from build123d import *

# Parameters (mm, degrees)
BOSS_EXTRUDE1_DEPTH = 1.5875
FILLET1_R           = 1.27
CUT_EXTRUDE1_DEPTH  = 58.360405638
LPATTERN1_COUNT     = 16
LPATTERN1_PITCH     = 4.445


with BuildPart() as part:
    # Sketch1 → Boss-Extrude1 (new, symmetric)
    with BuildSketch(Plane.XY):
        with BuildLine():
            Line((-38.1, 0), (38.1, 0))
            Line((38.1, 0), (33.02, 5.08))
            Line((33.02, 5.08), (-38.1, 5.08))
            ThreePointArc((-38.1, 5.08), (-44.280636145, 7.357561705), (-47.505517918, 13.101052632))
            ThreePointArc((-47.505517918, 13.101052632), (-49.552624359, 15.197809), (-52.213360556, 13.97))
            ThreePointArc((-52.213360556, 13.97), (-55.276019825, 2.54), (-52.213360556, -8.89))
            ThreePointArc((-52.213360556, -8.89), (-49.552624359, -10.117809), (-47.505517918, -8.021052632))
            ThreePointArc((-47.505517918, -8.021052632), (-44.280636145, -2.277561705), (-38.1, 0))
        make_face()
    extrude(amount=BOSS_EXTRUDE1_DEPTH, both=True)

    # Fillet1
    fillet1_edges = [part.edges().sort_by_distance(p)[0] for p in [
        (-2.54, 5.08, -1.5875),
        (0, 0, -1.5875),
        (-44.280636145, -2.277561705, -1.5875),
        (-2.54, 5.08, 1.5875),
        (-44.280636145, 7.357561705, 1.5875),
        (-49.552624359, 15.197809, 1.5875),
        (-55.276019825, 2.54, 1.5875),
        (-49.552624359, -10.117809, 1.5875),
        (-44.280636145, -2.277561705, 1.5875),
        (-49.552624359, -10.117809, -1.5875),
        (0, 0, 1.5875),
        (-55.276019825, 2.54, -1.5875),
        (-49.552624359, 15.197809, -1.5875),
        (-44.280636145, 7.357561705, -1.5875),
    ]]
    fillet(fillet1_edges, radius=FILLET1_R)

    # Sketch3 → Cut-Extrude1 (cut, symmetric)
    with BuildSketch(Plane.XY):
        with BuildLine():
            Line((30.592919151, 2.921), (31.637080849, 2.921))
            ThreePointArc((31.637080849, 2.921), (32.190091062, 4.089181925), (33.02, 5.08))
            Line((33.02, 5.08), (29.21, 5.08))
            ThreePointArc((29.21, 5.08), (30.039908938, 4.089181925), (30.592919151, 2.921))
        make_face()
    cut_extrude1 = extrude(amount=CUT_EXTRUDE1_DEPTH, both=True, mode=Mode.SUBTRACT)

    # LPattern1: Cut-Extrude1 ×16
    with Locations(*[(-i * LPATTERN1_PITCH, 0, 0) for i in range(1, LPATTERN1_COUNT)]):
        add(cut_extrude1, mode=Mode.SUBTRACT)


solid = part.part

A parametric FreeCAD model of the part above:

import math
import FreeCAD as App
import Part
import Sketcher

V = App.Vector
Q = App.Units.Quantity


def edges_at(feature, points):
    """Names of the edges that pass closest to the given points."""
    edges = feature.Shape.Edges
    near = lambda p: min(range(len(edges)), key=lambda i: edges[i].distToShape(Part.Vertex(*p))[0])
    return sorted({f"Edge{near(p) + 1}" for p in points})

doc = App.newDocument("Part")
body = doc.addObject("PartDesign::Body", "Body")

# Sketch on XY plane
sketch1 = body.newObject("Sketcher::SketchObject", "Sketch")
sketch1.AttachmentSupport = (doc.getObject("XY_Plane"), [""])
sketch1.MapMode = "FlatFace"
sketch1.addGeometry([
    Part.LineSegment(V(-38.1, 0, 0), V(38.1, 0, 0)),  # 0
    Part.LineSegment(V(38.1, 0, 0), V(33.02, 5.08, 0)),  # 1
    Part.LineSegment(V(33.02, 5.08, 0), V(-38.1, 5.08, 0)),  # 2
    Part.ArcOfCircle(Part.Circle(V(-38.1, 14.605, 0), V(0, 0, 1), 9.525), math.radians(-170.91528), math.radians(-90)),  # 3
    Part.ArcOfCircle(Part.Circle(V(-50.013656, 12.7, 0), V(0, 0, 1), 2.54), math.radians(9.08472), math.radians(150)),  # 4
    Part.ArcOfCircle(Part.Circle(V(-32.41602, 2.54, 0), V(0, 0, 1), 22.86), math.radians(150), math.radians(210)),  # 5
    Part.ArcOfCircle(Part.Circle(V(-50.013656, -7.62, 0), V(0, 0, 1), 2.54), math.radians(-150), math.radians(-9.08472)),  # 6
    Part.ArcOfCircle(Part.Circle(V(-38.1, -9.525, 0), V(0, 0, 1), 9.525), math.radians(90), math.radians(170.91528)),  # 7
], False)
sketch1.addConstraint([
    Sketcher.Constraint("Coincident", 0, 2, 1, 1),
    Sketcher.Constraint("Coincident", 1, 2, 2, 1),
    Sketcher.Constraint("Tangent", 2, 2, 3, 2),
    Sketcher.Constraint("Tangent", 3, 1, 4, 1),
    Sketcher.Constraint("Tangent", 4, 2, 5, 1),
    Sketcher.Constraint("Tangent", 5, 2, 6, 1),
    Sketcher.Constraint("Tangent", 6, 2, 7, 2),
    Sketcher.Constraint("Tangent", 7, 1, 0, 1),
    Sketcher.Constraint("Horizontal", 0),
    Sketcher.Constraint("Horizontal", 2),
    Sketcher.Constraint("Equal", 4, 6),
    Sketcher.Constraint("Equal", 3, 7),
    Sketcher.Constraint("Symmetric", 0, 2, 7, 1, -1, 1),
    Sketcher.Constraint("Vertical", 4, 3, 6, 3),
    Sketcher.Constraint("Vertical", 3, 3, 7, 3),
    Sketcher.Constraint("Radius", 4, Q("0.1 in")),
    Sketcher.Constraint("Radius", 5, Q("0.9 in")),
    Sketcher.Constraint("DistanceX", 0, 1, 0, 2, Q("3 in")),
    Sketcher.Constraint("DistanceX", 2, 2, 2, 1, Q("2.8 in")),
    Sketcher.Constraint("Angle", 1, Q("135 deg")),
    Sketcher.Constraint("Radius", 3, Q("0.375 in")),
    Sketcher.Constraint("DistanceY", -1, 1, 4, 3, Q("0.5 in")),
])
pad1 = body.newObject("PartDesign::Pad", "Pad")
pad1.Profile = sketch1
pad1.Length = Q("0.125 in")
pad1.Midplane = True
doc.recompute()

fillet = body.newObject("PartDesign::Fillet", "Fillet")
fillet.Base = (pad1, edges_at(pad1, [
    (-2.54, 5.08, -1.587),
    (0, 0, -1.587),
    (-44.281, -2.278, -1.587),
    (-2.54, 5.08, 1.587),
    (-44.281, 7.358, 1.587),
    (-49.553, 15.198, 1.587),
    (-55.276, 2.54, 1.587),
    (-49.553, -10.118, 1.587),
    (-44.281, -2.278, 1.587),
    (-49.553, -10.118, -1.587),
    (0, 0, 1.587),
    (-55.276, 2.54, -1.587),
    (-49.553, 15.198, -1.587),
    (-44.281, 7.358, -1.587),
]))
fillet.Radius = Q("0.05 in")

# Sketch on XY plane
sketch2 = body.newObject("Sketcher::SketchObject", "Sketch001")
sketch2.AttachmentSupport = (doc.getObject("XY_Plane"), [""])
sketch2.MapMode = "FlatFace"
sketch2.addGeometry([
    Part.LineSegment(V(30.592919, 2.921, 0), V(31.637081, 2.921, 0)),
    Part.ArcOfCircle(Part.Circle(V(36.467787, 1.34916, 0), V(0, 0, 1), 5.08), math.radians(132.741997), math.radians(161.975881)),
    Part.LineSegment(V(33.02, 5.08, 0), V(29.21, 5.08, 0)),
    Part.ArcOfCircle(Part.Circle(V(25.762213, 1.34916, 0), V(0, 0, 1), 5.08), math.radians(18.024119), math.radians(47.258003)),
], False)
sketch2.addConstraint([
    Sketcher.Constraint("Coincident", 0, 2, 1, 2),
    Sketcher.Constraint("Coincident", 1, 1, 2, 1),
    Sketcher.Constraint("Coincident", 2, 2, 3, 2),
    Sketcher.Constraint("Coincident", 3, 1, 0, 1),
    Sketcher.Constraint("Horizontal", 0),
    Sketcher.Constraint("Horizontal", 2),
    Sketcher.Constraint("Equal", 1, 3),
    Sketcher.Constraint("Horizontal", 1, 3, 3, 3),
    Sketcher.Constraint("Radius", 1, Q("0.2 in")),
    Sketcher.Constraint("DistanceX", 2, 2, 2, 1, Q("0.15 in")),
    Sketcher.Constraint("DistanceX", -1, 1, 1, 1, Q("1.3 in")),
    Sketcher.Constraint("DistanceY", -1, 1, 1, 1, Q("0.2 in")),
    Sketcher.Constraint("DistanceY", -1, 1, 0, 2, Q("0.115 in")),
    Sketcher.Constraint("DistanceX", 0, 1, 0, 2, 1.044162),
])
pocket1 = body.newObject("PartDesign::Pocket", "Pocket")
pocket1.Profile = sketch2
pocket1.Length = 116.720811
pocket1.Midplane = True
doc.recompute()

linearpattern = body.newObject("PartDesign::LinearPattern", "LinearPattern")
linearpattern.Originals = [pocket1]
linearpattern.Direction = (doc.getObject("X_Axis"), [""])
linearpattern.Mode = "offset"
linearpattern.Offset = Q("0.175 in")
linearpattern.Occurrences = 16
linearpattern.Reversed = True
body.Tip = linearpattern

doc.recompute()
